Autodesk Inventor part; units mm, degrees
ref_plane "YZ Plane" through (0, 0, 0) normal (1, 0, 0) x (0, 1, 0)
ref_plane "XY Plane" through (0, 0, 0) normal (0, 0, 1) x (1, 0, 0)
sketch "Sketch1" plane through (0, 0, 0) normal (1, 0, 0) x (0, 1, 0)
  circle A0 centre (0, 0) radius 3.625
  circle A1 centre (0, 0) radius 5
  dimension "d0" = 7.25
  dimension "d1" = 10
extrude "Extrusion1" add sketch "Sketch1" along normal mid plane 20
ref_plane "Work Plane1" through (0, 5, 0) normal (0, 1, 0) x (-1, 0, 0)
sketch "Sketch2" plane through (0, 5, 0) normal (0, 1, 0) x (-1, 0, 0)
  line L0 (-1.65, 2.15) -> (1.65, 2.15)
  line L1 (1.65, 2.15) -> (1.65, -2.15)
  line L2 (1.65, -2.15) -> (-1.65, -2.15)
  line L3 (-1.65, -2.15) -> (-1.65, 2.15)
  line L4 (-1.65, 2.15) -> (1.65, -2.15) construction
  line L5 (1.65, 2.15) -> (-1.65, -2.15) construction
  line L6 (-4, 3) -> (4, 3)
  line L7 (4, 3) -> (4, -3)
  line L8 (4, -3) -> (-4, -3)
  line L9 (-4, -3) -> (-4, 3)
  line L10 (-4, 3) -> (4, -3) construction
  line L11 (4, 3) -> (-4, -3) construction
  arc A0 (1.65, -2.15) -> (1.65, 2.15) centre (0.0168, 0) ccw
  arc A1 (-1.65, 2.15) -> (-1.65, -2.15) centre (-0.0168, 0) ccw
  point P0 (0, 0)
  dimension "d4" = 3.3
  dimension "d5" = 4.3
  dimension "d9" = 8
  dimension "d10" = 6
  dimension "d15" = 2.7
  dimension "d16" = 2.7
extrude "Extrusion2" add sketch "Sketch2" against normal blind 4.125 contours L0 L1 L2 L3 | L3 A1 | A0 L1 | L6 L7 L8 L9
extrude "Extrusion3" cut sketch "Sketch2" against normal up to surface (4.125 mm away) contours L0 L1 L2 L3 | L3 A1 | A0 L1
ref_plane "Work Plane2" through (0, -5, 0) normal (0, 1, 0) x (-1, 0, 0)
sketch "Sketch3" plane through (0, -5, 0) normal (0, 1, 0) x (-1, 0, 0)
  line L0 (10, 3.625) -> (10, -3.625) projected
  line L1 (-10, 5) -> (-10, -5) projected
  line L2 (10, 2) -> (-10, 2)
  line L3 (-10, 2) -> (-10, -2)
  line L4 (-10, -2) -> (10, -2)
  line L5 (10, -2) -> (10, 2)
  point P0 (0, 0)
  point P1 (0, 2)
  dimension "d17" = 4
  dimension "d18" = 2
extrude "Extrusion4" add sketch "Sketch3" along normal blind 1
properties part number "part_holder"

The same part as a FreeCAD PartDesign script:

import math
import FreeCAD as App
import Part
import Sketcher
Q = App.Units.Quantity

doc = App.newDocument("Part")
body = doc.addObject("PartDesign::Body", "Body")

# Sketch on YZ plane
sketch1 = body.newObject("Sketcher::SketchObject", "Sketch")
sketch1.AttachmentSupport = (doc.getObject("YZ_Plane"), [""])
sketch1.MapMode = "FlatFace"
sketch1.addGeometry(Part.Circle(App.Vector(0, 0, 0), App.Vector(0, 0, 1), 5), False)
sketch1.addGeometry(Part.Circle(App.Vector(0, 0, 0), App.Vector(0, 0, 1), 3.6), False)
sketch1.addConstraint(Sketcher.Constraint("Coincident", 0, 3, -1, 1))
sketch1.addConstraint(Sketcher.Constraint("Coincident", 1, 3, -1, 1))
sketch1.addConstraint(Sketcher.Constraint("Diameter", 0, Q("10 mm")))
sketch1.addConstraint(Sketcher.Constraint("Diameter", 1, Q("7.25 mm")))
pad1 = body.newObject("PartDesign::Pad", "Pad")
pad1.Profile = sketch1
pad1.Length = 20
pad1.Midplane = True

# Sketch on XZ plane
sketch2 = body.newObject("Sketcher::SketchObject", "Sketch001")
sketch2.AttachmentSupport = (doc.getObject("XZ_Plane"), [""])
sketch2.MapMode = "FlatFace"
sketch2.AttachmentOffset = App.Placement(App.Vector(0, 0, -5), App.Rotation())
sketch2.addGeometry(Part.LineSegment(App.Vector(-4, 3, 0), App.Vector(4, 3, 0)), False)
sketch2.addGeometry(Part.LineSegment(App.Vector(4, 3, 0), App.Vector(4, -3, 0)), False)
sketch2.addGeometry(Part.LineSegment(App.Vector(4, -3, 0), App.Vector(-4, -3, 0)), False)
sketch2.addGeometry(Part.LineSegment(App.Vector(-4, -3, 0), App.Vector(-4, 3, 0)), False)
sketch2.addConstraint(Sketcher.Constraint("Coincident", 0, 2, 1, 1))
sketch2.addConstraint(Sketcher.Constraint("Coincident", 1, 2, 2, 1))
sketch2.addConstraint(Sketcher.Constraint("Coincident", 2, 2, 3, 1))
sketch2.addConstraint(Sketcher.Constraint("Coincident", 3, 2, 0, 1))
sketch2.addConstraint(Sketcher.Constraint("Horizontal", 0))
sketch2.addConstraint(Sketcher.Constraint("Vertical", 1))
sketch2.addConstraint(Sketcher.Constraint("Horizontal", 2))
sketch2.addConstraint(Sketcher.Constraint("Vertical", 3))
sketch2.addConstraint(Sketcher.Constraint("Symmetric", 0, 2, 2, 2, -1, 1))
sketch2.addConstraint(Sketcher.Constraint("DistanceX", 0, 1, 0, 2, Q("8 mm")))
sketch2.addConstraint(Sketcher.Constraint("DistanceY", 1, 2, 1, 1, Q("6 mm")))
pad2 = body.newObject("PartDesign::Pad", "Pad001")
pad2.Profile = sketch2
pad2.Length = 4.125

# Sketch on XZ plane
sketch3 = body.newObject("Sketcher::SketchObject", "Sketch002")
sketch3.AttachmentSupport = (doc.getObject("XZ_Plane"), [""])
sketch3.MapMode = "FlatFace"
sketch3.AttachmentOffset = App.Placement(App.Vector(0, 0, -5), App.Rotation())
sketch3.addGeometry(Part.LineSegment(App.Vector(-1.6, 2.1, 0), App.Vector(1.6, 2.1, 0)), False)
sketch3.addGeometry(Part.ArcOfCircle(Part.Circle(App.Vector(0, 0, 0), App.Vector(0, 0, 1), 2.7), math.radians(-53), math.radians(53)), False)
sketch3.addGeometry(Part.LineSegment(App.Vector(1.6, -2.1, 0), App.Vector(-1.6, -2.1, 0)), False)
sketch3.addGeometry(Part.ArcOfCircle(Part.Circle(App.Vector(0, 0, 0), App.Vector(0, 0, 1), 2.7), math.radians(127), math.radians(233)), False)
sketch3.addConstraint(Sketcher.Constraint("Coincident", 0, 2, 1, 2))
sketch3.addConstraint(Sketcher.Constraint("Coincident", 1, 1, 2, 1))
sketch3.addConstraint(Sketcher.Constraint("Coincident", 2, 2, 3, 2))
sketch3.addConstraint(Sketcher.Constraint("Coincident", 3, 1, 0, 1))
sketch3.addConstraint(Sketcher.Constraint("Horizontal", 0))
sketch3.addConstraint(Sketcher.Constraint("Horizontal", 2))
sketch3.addConstraint(Sketcher.Constraint("Equal", 1, 3))
sketch3.addConstraint(Sketcher.Constraint("Symmetric", 1, 3, 3, 3, -1, 1))
sketch3.addConstraint(Sketcher.Constraint("Symmetric", 0, 2, 1, 1, -1))
sketch3.addConstraint(Sketcher.Constraint("Radius", 1, Q("2.7 mm")))
sketch3.addConstraint(Sketcher.Constraint("DistanceX", 0, 1, 0, 2, Q("3.3 mm")))
sketch3.addConstraint(Sketcher.Constraint("DistanceY", 1, 1, 0, 2, Q("4.3 mm")))
pocket1 = body.newObject("PartDesign::Pocket", "Pocket")
pocket1.Profile = sketch3
pocket1.Length = 4.125
pocket1.Reversed = True

# Sketch on XZ plane
sketch4 = body.newObject("Sketcher::SketchObject", "Sketch003")
sketch4.AttachmentSupport = (doc.getObject("XZ_Plane"), [""])
sketch4.MapMode = "FlatFace"
sketch4.AttachmentOffset = App.Placement(App.Vector(0, 0, 5), App.Rotation())
sketch4.addGeometry(Part.LineSegment(App.Vector(-10, -2, 0), App.Vector(-10, 2, 0)), False)
sketch4.addGeometry(Part.LineSegment(App.Vector(-10, 2, 0), App.Vector(10, 2, 0)), False)
sketch4.addGeometry(Part.LineSegment(App.Vector(10, 2, 0), App.Vector(10, -2, 0)), False)
sketch4.addGeometry(Part.LineSegment(App.Vector(10, -2, 0), App.Vector(-10, -2, 0)), False)
sketch4.addConstraint(Sketcher.Constraint("Coincident", 0, 2, 1, 1))
sketch4.addConstraint(Sketcher.Constraint("Coincident", 1, 2, 2, 1))
sketch4.addConstraint(Sketcher.Constraint("Coincident", 2, 2, 3, 1))
sketch4.addConstraint(Sketcher.Constraint("Coincident", 3, 2, 0, 1))
sketch4.addConstraint(Sketcher.Constraint("Vertical", 0))
sketch4.addConstraint(Sketcher.Constraint("Horizontal", 1))
sketch4.addConstraint(Sketcher.Constraint("Vertical", 2))
sketch4.addConstraint(Sketcher.Constraint("Horizontal", 3))
sketch4.addConstraint(Sketcher.Constraint("Symmetric", 0, 2, 2, 2, -1, 1))
sketch4.addConstraint(Sketcher.Constraint("DistanceY", 0, 1, 0, 2, Q("4 mm")))
sketch4.addConstraint(Sketcher.Constraint("DistanceX", 1, 1, 1, 2, Q("20 mm")))
pad3 = body.newObject("PartDesign::Pad", "Pad002")
pad3.Profile = sketch4
pad3.Length = 1
pad3.Reversed = True

doc.recompute()
